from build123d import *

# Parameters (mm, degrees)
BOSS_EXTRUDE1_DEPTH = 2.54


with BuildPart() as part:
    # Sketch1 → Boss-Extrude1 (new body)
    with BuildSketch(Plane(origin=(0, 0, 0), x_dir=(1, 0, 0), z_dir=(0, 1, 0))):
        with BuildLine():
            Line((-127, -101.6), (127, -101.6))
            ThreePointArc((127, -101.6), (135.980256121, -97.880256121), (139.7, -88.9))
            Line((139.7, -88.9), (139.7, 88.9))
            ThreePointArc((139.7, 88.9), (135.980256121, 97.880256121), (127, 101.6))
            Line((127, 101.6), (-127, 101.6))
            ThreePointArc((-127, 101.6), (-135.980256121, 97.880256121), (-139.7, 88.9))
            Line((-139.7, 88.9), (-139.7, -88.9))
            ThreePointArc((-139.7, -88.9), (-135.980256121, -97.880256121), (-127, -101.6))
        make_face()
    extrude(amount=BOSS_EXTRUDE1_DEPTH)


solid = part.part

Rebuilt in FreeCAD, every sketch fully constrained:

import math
import FreeCAD as App
import Part
import Sketcher
from FreeCAD import Vector
Q = App.Units.Quantity

doc = App.newDocument("Part")
body = doc.addObject("PartDesign::Body", "Body")

# Sketch on XZ plane
sketch1 = body.newObject("Sketcher::SketchObject", "Sketch")
sketch1.AttachmentSupport = (doc.getObject("XZ_Plane"), [""])
sketch1.MapMode = "FlatFace"
sketch1.addGeometry([
    Part.LineSegment(Vector(-127, 101.6, 0), Vector(127, 101.6, 0)),  # 0
    Part.ArcOfCircle(Part.Circle(Vector(127, 88.9, 0), Vector(0, 0, 1), 12.7), math.radians(0), math.radians(90)),  # 1
    Part.LineSegment(Vector(139.7, 88.9, 0), Vector(139.7, -88.9, 0)),  # 2
    Part.ArcOfCircle(Part.Circle(Vector(127, -88.9, 0), Vector(0, 0, 1), 12.7), math.radians(-90), math.radians(0)),  # 3
    Part.LineSegment(Vector(127, -101.6, 0), Vector(-127, -101.6, 0)),  # 4
    Part.ArcOfCircle(Part.Circle(Vector(-127, -88.9, 0), Vector(0, 0, 1), 12.7), math.radians(180), math.radians(270)),  # 5
    Part.LineSegment(Vector(-139.7, -88.9, 0), Vector(-139.7, 88.9, 0)),  # 6
    Part.ArcOfCircle(Part.Circle(Vector(-127, 88.9, 0), Vector(0, 0, 1), 12.7), math.radians(90), math.radians(180)),  # 7
], False)
sketch1.addConstraint([
    Sketcher.Constraint("Tangent", 0, 2, 1, 2),
    Sketcher.Constraint("Tangent", 1, 1, 2, 1),
    Sketcher.Constraint("Tangent", 2, 2, 3, 2),
    Sketcher.Constraint("Tangent", 3, 1, 4, 1),
    Sketcher.Constraint("Tangent", 4, 2, 5, 2),
    Sketcher.Constraint("Tangent", 5, 1, 6, 1),
    Sketcher.Constraint("Tangent", 6, 2, 7, 2),
    Sketcher.Constraint("Tangent", 7, 1, 0, 1),
    Sketcher.Constraint("Horizontal", 0),
    Sketcher.Constraint("Vertical", 2),
    Sketcher.Constraint("Horizontal", 4),
    Sketcher.Constraint("Vertical", 6),
    Sketcher.Constraint("Equal", 1, 3),
    Sketcher.Constraint("Equal", 3, 5),
    Sketcher.Constraint("Equal", 5, 7),
    Sketcher.Constraint("Symmetric", 1, 3, 5, 3, -1, 1),
    Sketcher.Constraint("Radius", 1, Q("0.5 in")),
    Sketcher.Constraint("DistanceX", 0, 1, 0, 2, Q("10 in")),
    Sketcher.Constraint("DistanceY", 2, 2, 2, 1, Q("7 in")),
])
pad1 = body.newObject("PartDesign::Pad", "Pad")
pad1.Profile = sketch1
pad1.Length = Q("0.1 in")
pad1.Reversed = True

doc.recompute()
